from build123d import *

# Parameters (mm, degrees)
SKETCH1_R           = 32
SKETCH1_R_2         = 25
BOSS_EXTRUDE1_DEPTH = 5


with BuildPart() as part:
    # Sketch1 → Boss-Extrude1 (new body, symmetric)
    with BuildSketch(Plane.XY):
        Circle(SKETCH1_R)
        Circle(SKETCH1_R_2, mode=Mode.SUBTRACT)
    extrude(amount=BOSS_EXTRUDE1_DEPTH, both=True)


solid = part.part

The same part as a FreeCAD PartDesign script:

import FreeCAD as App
import Part
import Sketcher
from FreeCAD import Vector
Q = App.Units.Quantity

doc = App.newDocument("Part")
body = doc.addObject("PartDesign::Body", "Body")

sketch1 = doc.addObject("Sketcher::SketchObject", "Sketch")
body.addObject(sketch1)
sketch1.AttachmentSupport = (doc.XY_Plane, [""])
sketch1.MapMode = "FlatFace"
sketch1.addGeometry([
    Part.Circle(Vector(0, 0, 0), Vector(0, 0, 1), 32),
    Part.Circle(Vector(0, 0, 0), Vector(0, 0, 1), 25),
], False)
sketch1.addConstraint([
    Sketcher.Constraint("Coincident", 0, 3, -1, 1),
    Sketcher.Constraint("Coincident", 1, 3, -1, 1),
    Sketcher.Constraint("Diameter", 0, Q("64 mm")),
    Sketcher.Constraint("Diameter", 1, Q("50 mm")),
])
pad1 = doc.addObject("PartDesign::Pad", "Pad")
body.addObject(pad1)
pad1.Profile = sketch1
pad1.Length = 10
pad1.Midplane = True

doc.recompute()
